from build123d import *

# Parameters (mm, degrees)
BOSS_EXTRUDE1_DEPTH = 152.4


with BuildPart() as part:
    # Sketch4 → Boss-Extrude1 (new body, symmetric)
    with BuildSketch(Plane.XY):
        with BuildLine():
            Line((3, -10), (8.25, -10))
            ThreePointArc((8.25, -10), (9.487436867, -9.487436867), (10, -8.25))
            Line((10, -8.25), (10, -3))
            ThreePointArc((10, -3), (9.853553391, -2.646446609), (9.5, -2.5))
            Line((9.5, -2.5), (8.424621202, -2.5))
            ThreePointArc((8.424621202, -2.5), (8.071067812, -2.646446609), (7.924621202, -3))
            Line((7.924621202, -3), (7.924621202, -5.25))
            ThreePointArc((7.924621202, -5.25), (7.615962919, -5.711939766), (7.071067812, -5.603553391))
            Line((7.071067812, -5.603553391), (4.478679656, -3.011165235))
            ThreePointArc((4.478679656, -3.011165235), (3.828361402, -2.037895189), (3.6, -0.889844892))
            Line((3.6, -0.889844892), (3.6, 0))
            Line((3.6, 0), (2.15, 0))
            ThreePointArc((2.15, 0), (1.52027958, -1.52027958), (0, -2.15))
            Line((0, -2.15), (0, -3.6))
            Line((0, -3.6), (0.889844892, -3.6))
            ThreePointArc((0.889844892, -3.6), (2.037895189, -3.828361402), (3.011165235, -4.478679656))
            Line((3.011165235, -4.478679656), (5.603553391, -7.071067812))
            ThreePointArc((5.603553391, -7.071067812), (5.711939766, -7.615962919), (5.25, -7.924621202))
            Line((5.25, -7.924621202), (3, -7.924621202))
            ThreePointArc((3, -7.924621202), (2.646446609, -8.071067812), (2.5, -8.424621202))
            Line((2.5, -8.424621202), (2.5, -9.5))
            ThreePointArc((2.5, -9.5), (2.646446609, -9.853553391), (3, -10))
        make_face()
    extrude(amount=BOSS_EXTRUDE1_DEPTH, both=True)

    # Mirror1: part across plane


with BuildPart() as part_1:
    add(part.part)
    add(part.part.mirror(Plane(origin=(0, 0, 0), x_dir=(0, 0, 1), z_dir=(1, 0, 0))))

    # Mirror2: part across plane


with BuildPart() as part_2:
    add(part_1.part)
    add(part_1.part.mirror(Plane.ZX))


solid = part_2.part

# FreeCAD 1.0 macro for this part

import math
import FreeCAD as App
import Part
import Sketcher
Q = App.Units.Quantity

doc = App.newDocument("Part")
body = doc.addObject("PartDesign::Body", "Body")

# Sketch on XY plane
sketch1 = body.newObject("Sketcher::SketchObject", "Sketch")
sketch1.AttachmentSupport = (doc.getObject("XY_Plane"), [""])
sketch1.MapMode = "FlatFace"
sketch1.addGeometry(Part.LineSegment(App.Vector(3, -10, 0), App.Vector(8.25, -10, 0)), False)
sketch1.addGeometry(Part.ArcOfCircle(Part.Circle(App.Vector(8.25, -8.25, 0), App.Vector(0, 0, 1), 1.75), math.radians(-90), math.radians(0)), False)
sketch1.addGeometry(Part.LineSegment(App.Vector(10, -8.25, 0), App.Vector(10, -3, 0)), False)
sketch1.addGeometry(Part.ArcOfCircle(Part.Circle(App.Vector(9.5, -3, 0), App.Vector(0, 0, 1), 0.5), math.radians(0), math.radians(90)), False)
sketch1.addGeometry(Part.LineSegment(App.Vector(9.5, -2.5, 0), App.Vector(8.424621, -2.5, 0)), False)
sketch1.addGeometry(Part.ArcOfCircle(Part.Circle(App.Vector(8.424621, -3, 0), App.Vector(0, 0, 1), 0.5), math.radians(90), math.radians(180)), False)
sketch1.addGeometry(Part.LineSegment(App.Vector(7.924621, -3, 0), App.Vector(7.924621, -5.25, 0)), False)
sketch1.addGeometry(Part.ArcOfCircle(Part.Circle(App.Vector(7.424621, -5.25, 0), App.Vector(0, 0, 1), 0.5), math.radians(-135), math.radians(0)), False)
sketch1.addGeometry(Part.LineSegment(App.Vector(7.071068, -5.603553, 0), App.Vector(4.47868, -3.011165, 0)), False)
sketch1.addGeometry(Part.ArcOfCircle(Part.Circle(App.Vector(6.6, -0.889845, 0), App.Vector(0, 0, 1), 3), math.radians(180), math.radians(225)), False)
sketch1.addGeometry(Part.LineSegment(App.Vector(3.6, -0.889845, 0), App.Vector(3.6, 0, 0)), False)
sketch1.addGeometry(Part.LineSegment(App.Vector(3.6, 0, 0), App.Vector(2.15, 0, 0)), False)
sketch1.addGeometry(Part.ArcOfCircle(Part.Circle(App.Vector(0, 0, 0), App.Vector(0, 0, 1), 2.15), math.radians(-90), math.radians(0)), False)
sketch1.addGeometry(Part.LineSegment(App.Vector(0, -2.15, 0), App.Vector(0, -3.6, 0)), False)
sketch1.addGeometry(Part.LineSegment(App.Vector(0, -3.6, 0), App.Vector(0.889845, -3.6, 0)), False)
sketch1.addGeometry(Part.ArcOfCircle(Part.Circle(App.Vector(0.889845, -6.6, 0), App.Vector(0, 0, 1), 3), math.radians(45), math.radians(90)), False)
sketch1.addGeometry(Part.LineSegment(App.Vector(3.011165, -4.47868, 0), App.Vector(5.603553, -7.071068, 0)), False)
sketch1.addGeometry(Part.ArcOfCircle(Part.Circle(App.Vector(5.25, -7.424621, 0), App.Vector(0, 0, 1), 0.5), math.radians(-90), math.radians(45)), False)
sketch1.addGeometry(Part.LineSegment(App.Vector(5.25, -7.924621, 0), App.Vector(3, -7.924621, 0)), False)
sketch1.addGeometry(Part.ArcOfCircle(Part.Circle(App.Vector(3, -8.424621, 0), App.Vector(0, 0, 1), 0.5), math.radians(90), math.radians(180)), False)
sketch1.addGeometry(Part.LineSegment(App.Vector(2.5, -8.424621, 0), App.Vector(2.5, -9.5, 0)), False)
sketch1.addGeometry(Part.ArcOfCircle(Part.Circle(App.Vector(3, -9.5, 0), App.Vector(0, 0, 1), 0.5), math.radians(180), math.radians(270)), False)
sketch1.addConstraint(Sketcher.Constraint("Tangent", 0, 2, 1, 1))
sketch1.addConstraint(Sketcher.Constraint("Tangent", 1, 2, 2, 1))
sketch1.addConstraint(Sketcher.Constraint("Tangent", 2, 2, 3, 1))
sketch1.addConstraint(Sketcher.Constraint("Tangent", 3, 2, 4, 1))
sketch1.addConstraint(Sketcher.Constraint("Tangent", 4, 2, 5, 1))
sketch1.addConstraint(Sketcher.Constraint("Tangent", 5, 2, 6, 1))
sketch1.addConstraint(Sketcher.Constraint("Tangent", 6, 2, 7, 2))
sketch1.addConstraint(Sketcher.Constraint("Tangent", 7, 1, 8, 1))
sketch1.addConstraint(Sketcher.Constraint("Tangent", 8, 2, 9, 2))
sketch1.addConstraint(Sketcher.Constraint("Tangent", 9, 1, 10, 1))
sketch1.addConstraint(Sketcher.Constraint("Coincident", 10, 2, 11, 1))
sketch1.addConstraint(Sketcher.Constraint("Coincident", 11, 2, 12, 2))
sketch1.addConstraint(Sketcher.Constraint("Coincident", 12, 1, 13, 1))
sketch1.addConstraint(Sketcher.Constraint("Coincident", 13, 2, 14, 1))
sketch1.addConstraint(Sketcher.Constraint("Tangent", 14, 2, 15, 2))
sketch1.addConstraint(Sketcher.Constraint("Tangent", 15, 1, 16, 1))
sketch1.addConstraint(Sketcher.Constraint("Tangent", 16, 2, 17, 2))
sketch1.addConstraint(Sketcher.Constraint("Tangent", 17, 1, 18, 1))
sketch1.addConstraint(Sketcher.Constraint("Tangent", 18, 2, 19, 1))
sketch1.addConstraint(Sketcher.Constraint("Tangent", 19, 2, 20, 1))
sketch1.addConstraint(Sketcher.Constraint("Tangent", 20, 2, 21, 1))
sketch1.addConstraint(Sketcher.Constraint("Tangent", 21, 2, 0, 1))
sketch1.addConstraint(Sketcher.Constraint("Horizontal", 0))
sketch1.addConstraint(Sketcher.Constraint("Vertical", 2))
sketch1.addConstraint(Sketcher.Constraint("Horizontal", 4))
sketch1.addConstraint(Sketcher.Constraint("Vertical", 6))
sketch1.addConstraint(Sketcher.Constraint("Vertical", 10))
sketch1.addConstraint(Sketcher.Constraint("Horizontal", 11))
sketch1.addConstraint(Sketcher.Constraint("Vertical", 13))
sketch1.addConstraint(Sketcher.Constraint("Horizontal", 14))
sketch1.addConstraint(Sketcher.Constraint("Horizontal", 18))
sketch1.addConstraint(Sketcher.Constraint("Vertical", 20))
sketch1.addConstraint(Sketcher.Constraint("Coincident", 12, 3, -1, 1))
sketch1.addConstraint(Sketcher.Constraint("Equal", 3, 5))
sketch1.addConstraint(Sketcher.Constraint("Equal", 5, 7))
sketch1.addConstraint(Sketcher.Constraint("Equal", 9, 15))
sketch1.addConstraint(Sketcher.Constraint("Equal", 7, 17))
sketch1.addConstraint(Sketcher.Constraint("Equal", 17, 19))
sketch1.addConstraint(Sketcher.Constraint("Equal", 19, 21))
sketch1.addConstraint(Sketcher.Constraint("PointOnObject", 10, 2, -1))
sketch1.addConstraint(Sketcher.Constraint("PointOnObject", 12, 1, -2))
sketch1.addConstraint(Sketcher.Constraint("Parallel", 8, 16))
sketch1.addConstraint(Sketcher.Constraint("Equal", 0, 2))
sketch1.addConstraint(Sketcher.Constraint("Equal", 18, 6))
sketch1.addConstraint(Sketcher.Constraint("Equal", 14, 10))
sketch1.addConstraint(Sketcher.Constraint("Equal", 11, 13))
sketch1.addConstraint(Sketcher.Constraint("Equal", 4, 20))
sketch1.addConstraint(Sketcher.Constraint("Equal", 8, 16))
sketch1.addConstraint(Sketcher.Constraint("Radius", 9, Q("3 mm")))
sketch1.addConstraint(Sketcher.Constraint("Radius", 3, Q("0.5 mm")))
sketch1.addConstraint(Sketcher.Constraint("Radius", 1, Q("1.75 mm")))
sketch1.addConstraint(Sketcher.Constraint("Radius", 12, Q("2.15 mm")))
sketch1.addConstraint(Sketcher.Constraint("DistanceY", 3, 3, -1, 1, Q("3 mm")))
sketch1.addConstraint(Sketcher.Constraint("DistanceY", 0, 2, -1, 1, Q("10 mm")))
sketch1.addConstraint(Sketcher.Constraint("DistanceY", 1, 3, 7, 3, Q("3 mm")))
sketch1.addConstraint(Sketcher.Constraint("DistanceX", 11, 2, 11, 1, Q("1.45 mm")))
sketch1.addConstraint(Sketcher.Constraint("DistanceX", 4, 2, 4, 1, Q("1.075379 mm")))
pad1 = body.newObject("PartDesign::Pad", "Pad")
pad1.Profile = sketch1
pad1.Length = 304.8
pad1.Midplane = True
body2 = doc.addObject("PartDesign::Body", "Body001")
doc.recompute()

body2.BaseFeature = body
doc.recompute()

mirroring = doc.addObject("Part::Mirroring", "Mirroring")
mirroring.Source = body
mirroring.Base = App.Vector(0, 0, 0)
mirroring.Normal = App.Vector(1, 0, 0)
body3 = doc.addObject("PartDesign::Body", "Body002")
body3.BaseFeature = mirroring
boolean = body2.newObject("PartDesign::Boolean", "Boolean")
boolean.Type = "Fuse"
boolean.addObjects([body3])
doc.recompute()
body4 = doc.addObject("PartDesign::Body", "Body003")
doc.recompute()

body4.BaseFeature = body2
doc.recompute()

mirroring2 = doc.addObject("Part::Mirroring", "Mirroring001")
mirroring2.Source = body2
mirroring2.Base = App.Vector(0, 0, 0)
mirroring2.Normal = App.Vector(0, 1, 0)
body5 = doc.addObject("PartDesign::Body", "Body004")
body5.BaseFeature = mirroring2
boolean2 = body4.newObject("PartDesign::Boolean", "Boolean001")
boolean2.Type = "Fuse"
boolean2.addObjects([body5])
doc.recompute()
mirroring.Visibility = False
mirroring2.Visibility = False

doc.recompute()
